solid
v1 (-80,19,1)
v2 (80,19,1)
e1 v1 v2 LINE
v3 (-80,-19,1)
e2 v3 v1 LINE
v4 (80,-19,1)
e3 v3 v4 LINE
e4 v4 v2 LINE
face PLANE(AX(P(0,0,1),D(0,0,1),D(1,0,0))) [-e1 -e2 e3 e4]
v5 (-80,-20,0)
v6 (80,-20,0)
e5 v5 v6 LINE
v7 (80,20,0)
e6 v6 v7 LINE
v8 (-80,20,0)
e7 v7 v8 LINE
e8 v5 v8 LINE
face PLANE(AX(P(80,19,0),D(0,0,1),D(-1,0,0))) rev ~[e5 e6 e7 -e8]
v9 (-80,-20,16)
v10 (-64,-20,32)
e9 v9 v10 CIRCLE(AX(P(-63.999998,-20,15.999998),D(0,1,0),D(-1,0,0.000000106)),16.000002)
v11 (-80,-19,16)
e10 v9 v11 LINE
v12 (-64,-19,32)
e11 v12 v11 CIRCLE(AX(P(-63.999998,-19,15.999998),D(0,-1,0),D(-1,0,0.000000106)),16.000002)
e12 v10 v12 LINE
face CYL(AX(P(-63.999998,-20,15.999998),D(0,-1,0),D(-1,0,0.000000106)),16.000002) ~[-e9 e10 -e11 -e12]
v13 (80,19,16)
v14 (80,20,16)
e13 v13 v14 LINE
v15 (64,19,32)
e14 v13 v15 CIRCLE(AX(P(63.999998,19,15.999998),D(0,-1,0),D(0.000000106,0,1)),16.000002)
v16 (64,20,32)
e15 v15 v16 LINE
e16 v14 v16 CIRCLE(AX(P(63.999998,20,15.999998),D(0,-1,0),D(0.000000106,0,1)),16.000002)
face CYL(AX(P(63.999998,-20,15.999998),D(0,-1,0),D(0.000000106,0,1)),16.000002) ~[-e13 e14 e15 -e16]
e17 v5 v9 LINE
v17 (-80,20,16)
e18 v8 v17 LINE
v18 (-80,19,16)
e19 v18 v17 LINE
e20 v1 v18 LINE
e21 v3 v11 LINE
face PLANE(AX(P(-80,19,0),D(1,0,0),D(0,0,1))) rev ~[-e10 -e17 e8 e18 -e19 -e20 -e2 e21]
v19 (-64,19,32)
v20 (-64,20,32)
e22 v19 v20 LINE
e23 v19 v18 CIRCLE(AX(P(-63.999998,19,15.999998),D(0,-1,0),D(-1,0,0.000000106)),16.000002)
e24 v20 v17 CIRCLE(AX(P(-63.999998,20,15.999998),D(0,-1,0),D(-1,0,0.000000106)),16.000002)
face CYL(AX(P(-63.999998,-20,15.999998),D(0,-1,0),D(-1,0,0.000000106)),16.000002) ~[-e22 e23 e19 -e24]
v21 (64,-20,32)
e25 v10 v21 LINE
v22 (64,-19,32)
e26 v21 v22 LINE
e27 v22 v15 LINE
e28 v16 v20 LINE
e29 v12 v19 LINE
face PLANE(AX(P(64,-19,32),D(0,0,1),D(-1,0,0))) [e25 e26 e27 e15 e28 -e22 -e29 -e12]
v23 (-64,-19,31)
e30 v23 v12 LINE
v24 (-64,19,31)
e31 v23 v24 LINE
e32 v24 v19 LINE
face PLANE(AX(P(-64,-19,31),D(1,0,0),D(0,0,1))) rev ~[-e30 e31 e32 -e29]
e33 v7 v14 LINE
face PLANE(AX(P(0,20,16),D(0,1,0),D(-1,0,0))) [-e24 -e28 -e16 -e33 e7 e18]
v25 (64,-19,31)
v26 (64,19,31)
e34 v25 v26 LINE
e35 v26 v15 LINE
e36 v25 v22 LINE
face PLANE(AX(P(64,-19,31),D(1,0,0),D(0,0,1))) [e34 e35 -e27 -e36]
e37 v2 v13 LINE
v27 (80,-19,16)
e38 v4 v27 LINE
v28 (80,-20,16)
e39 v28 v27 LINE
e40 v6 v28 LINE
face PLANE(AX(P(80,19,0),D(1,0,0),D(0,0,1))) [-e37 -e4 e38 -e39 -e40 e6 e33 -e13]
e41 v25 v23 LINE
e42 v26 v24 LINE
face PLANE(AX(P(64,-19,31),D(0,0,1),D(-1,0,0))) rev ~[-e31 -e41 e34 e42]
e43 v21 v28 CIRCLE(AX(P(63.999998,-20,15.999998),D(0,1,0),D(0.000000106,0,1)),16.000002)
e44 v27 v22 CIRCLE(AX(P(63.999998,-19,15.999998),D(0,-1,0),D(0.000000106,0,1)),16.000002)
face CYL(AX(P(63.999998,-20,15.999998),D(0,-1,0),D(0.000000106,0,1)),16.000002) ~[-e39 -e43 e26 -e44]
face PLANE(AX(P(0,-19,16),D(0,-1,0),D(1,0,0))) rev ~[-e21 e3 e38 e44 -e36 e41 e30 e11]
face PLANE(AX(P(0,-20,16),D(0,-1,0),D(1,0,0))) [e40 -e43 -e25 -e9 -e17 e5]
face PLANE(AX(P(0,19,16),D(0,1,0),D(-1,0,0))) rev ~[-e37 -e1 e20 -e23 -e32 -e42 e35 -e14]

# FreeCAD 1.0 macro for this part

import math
import FreeCAD as App
import Part
import Sketcher


def add_polygon(sketch, points):
    """Adds a closed chain of lines whose ends are joined by coincident constraints."""
    first, n = sketch.GeometryCount, len(points)
    for a, b in zip(points, points[1:] + points[:1]):
        sketch.addGeometry(Part.LineSegment(App.Vector(*a, 0), App.Vector(*b, 0)), False)
    for i in range(n):
        sketch.addConstraint(Sketcher.Constraint("Coincident", first + i, 2, first + (i + 1) % n, 1))

doc = App.newDocument("Part")
body = doc.addObject("PartDesign::Body", "Body")

# Sketch on XY plane
sketch1 = body.newObject("Sketcher::SketchObject", "Sketch")
sketch1.AttachmentSupport = (doc.getObject("XY_Plane"), [""])
sketch1.MapMode = "FlatFace"
add_polygon(sketch1, [(-80, 19), (-80, -19), (80, -19), (80, 19)])  # lines 0-3
sketch1.addConstraint(Sketcher.Constraint("Vertical", 0))
sketch1.addConstraint(Sketcher.Constraint("Horizontal", 1))
sketch1.addConstraint(Sketcher.Constraint("Vertical", 2))
sketch1.addConstraint(Sketcher.Constraint("Horizontal", 3))
sketch1.addConstraint(Sketcher.Constraint("Symmetric", 0, 2, 2, 2, -1, 1))
sketch1.addConstraint(Sketcher.Constraint("DistanceX", 1, 1, 1, 2, 160.0))
sketch1.addConstraint(Sketcher.Constraint("DistanceY", 0, 2, 0, 1, 38.0))
pad1 = body.newObject("PartDesign::Pad", "Pad")
pad1.Profile = sketch1
pad1.Length = 1

# Sketch on XZ plane
sketch2 = body.newObject("Sketcher::SketchObject", "Sketch001")
sketch2.AttachmentSupport = (doc.getObject("XZ_Plane"), [""])
sketch2.MapMode = "FlatFace"
sketch2.AttachmentOffset = App.Placement(App.Vector(0, 0, 19), App.Rotation())
add_polygon(sketch2, [(-80, 32), (-80, 0), (80, 0), (80, 32)])  # lines 0-3
sketch2.addConstraint(Sketcher.Constraint("Vertical", 0))
sketch2.addConstraint(Sketcher.Constraint("Horizontal", 1))
sketch2.addConstraint(Sketcher.Constraint("Vertical", 2))
sketch2.addConstraint(Sketcher.Constraint("Horizontal", 3))
sketch2.addConstraint(Sketcher.Constraint("Symmetric", 0, 2, 1, 2, -1, 1))
sketch2.addConstraint(Sketcher.Constraint("DistanceX", 1, 1, 1, 2, 160.0))
sketch2.addConstraint(Sketcher.Constraint("DistanceY", 0, 2, 0, 1, 32.0))
pad2 = body.newObject("PartDesign::Pad", "Pad001")
pad2.Profile = sketch2
pad2.Length = 1

# Sketch on XZ plane
sketch3 = body.newObject("Sketcher::SketchObject", "Sketch002")
sketch3.AttachmentSupport = (doc.getObject("XZ_Plane"), [""])
sketch3.MapMode = "FlatFace"
sketch3.AttachmentOffset = App.Placement(App.Vector(0, 0, -19), App.Rotation())
add_polygon(sketch3, [(80, 32), (80, 0), (-80, 0), (-80, 32)])  # lines 0-3
sketch3.addConstraint(Sketcher.Constraint("Vertical", 0))
sketch3.addConstraint(Sketcher.Constraint("Horizontal", 1))
sketch3.addConstraint(Sketcher.Constraint("Vertical", 2))
sketch3.addConstraint(Sketcher.Constraint("Horizontal", 3))
sketch3.addConstraint(Sketcher.Constraint("Symmetric", 0, 2, 1, 2, -1, 1))
sketch3.addConstraint(Sketcher.Constraint("DistanceX", 1, 2, 1, 1, 160.0))
sketch3.addConstraint(Sketcher.Constraint("DistanceY", 0, 2, 0, 1, 32.0))
pad3 = body.newObject("PartDesign::Pad", "Pad002")
pad3.Profile = sketch3
pad3.Length = 1
pad3.Reversed = True

# Sketch on XZ plane
sketch4 = body.newObject("Sketcher::SketchObject", "Sketch003")
sketch4.AttachmentSupport = (doc.getObject("XZ_Plane"), [""])
sketch4.MapMode = "FlatFace"
sketch4.AttachmentOffset = App.Placement(App.Vector(0, 0, 20), App.Rotation())
sketch4.addGeometry(Part.ArcOfCircle(Part.Circle(App.Vector(-63.999998, 15.999998, 0), App.Vector(0, 0, 1), 16.000002), math.radians(90.000006), math.radians(179.999994)), False)
sketch4.addGeometry(Part.LineSegment(App.Vector(-64, 32, 0), App.Vector(-80, 32, 0)), False)
sketch4.addGeometry(Part.LineSegment(App.Vector(-80, 32, 0), App.Vector(-80, 16, 0)), False)
sketch4.addConstraint(Sketcher.Constraint("Tangent", 0, 1, 1, 1))
sketch4.addConstraint(Sketcher.Constraint("Coincident", 1, 2, 2, 1))
sketch4.addConstraint(Sketcher.Constraint("Tangent", 2, 2, 0, 2))
sketch4.addConstraint(Sketcher.Constraint("Horizontal", 1))
sketch4.addConstraint(Sketcher.Constraint("Vertical", 2))
sketch4.addConstraint(Sketcher.Constraint("Radius", 0, 16.000002))
sketch4.addConstraint(Sketcher.Constraint("DistanceX", 0, 3, -1, 1, 63.999998))
sketch4.addConstraint(Sketcher.Constraint("DistanceY", -1, 1, 0, 3, 15.999998))
pocket1 = body.newObject("PartDesign::Pocket", "Pocket")
pocket1.Profile = sketch4
pocket1.Type = "ThroughAll"

# Sketch on XZ plane
sketch5 = body.newObject("Sketcher::SketchObject", "Sketch004")
sketch5.AttachmentSupport = (doc.getObject("XZ_Plane"), [""])
sketch5.MapMode = "FlatFace"
sketch5.AttachmentOffset = App.Placement(App.Vector(0, 0, 20), App.Rotation())
sketch5.addGeometry(Part.LineSegment(App.Vector(80, 32, 0), App.Vector(64, 32, 0)), False)
sketch5.addGeometry(Part.ArcOfCircle(Part.Circle(App.Vector(63.999998, 15.999998, 0), App.Vector(0, 0, 1), 16.000002), math.radians(0.000006), math.radians(89.999994)), False)
sketch5.addGeometry(Part.LineSegment(App.Vector(80, 16, 0), App.Vector(80, 32, 0)), False)
sketch5.addConstraint(Sketcher.Constraint("Tangent", 0, 2, 1, 2))
sketch5.addConstraint(Sketcher.Constraint("Tangent", 1, 1, 2, 1))
sketch5.addConstraint(Sketcher.Constraint("Coincident", 2, 2, 0, 1))
sketch5.addConstraint(Sketcher.Constraint("Horizontal", 0))
sketch5.addConstraint(Sketcher.Constraint("Vertical", 2))
sketch5.addConstraint(Sketcher.Constraint("Radius", 1, 16.000002))
sketch5.addConstraint(Sketcher.Constraint("DistanceX", -1, 1, 1, 3, 63.999998))
sketch5.addConstraint(Sketcher.Constraint("DistanceY", -1, 1, 1, 3, 15.999998))
pocket2 = body.newObject("PartDesign::Pocket", "Pocket001")
pocket2.Profile = sketch5
pocket2.Type = "ThroughAll"

# Sketch on XZ plane
sketch6 = body.newObject("Sketcher::SketchObject", "Sketch005")
sketch6.AttachmentSupport = (doc.getObject("XZ_Plane"), [""])
sketch6.MapMode = "FlatFace"
sketch6.AttachmentOffset = App.Placement(App.Vector(0, 0, 19), App.Rotation())
add_polygon(sketch6, [(64, 32), (64, 31), (-64, 31), (-64, 32)])  # lines 0-3
sketch6.addConstraint(Sketcher.Constraint("Vertical", 0))
sketch6.addConstraint(Sketcher.Constraint("Horizontal", 1))
sketch6.addConstraint(Sketcher.Constraint("Vertical", 2))
sketch6.addConstraint(Sketcher.Constraint("Horizontal", 3))
sketch6.addConstraint(Sketcher.Constraint("DistanceX", 1, 2, 1, 1, 128.0))
sketch6.addConstraint(Sketcher.Constraint("DistanceY", 0, 2, 0, 1, 1.0))
sketch6.addConstraint(Sketcher.Constraint("DistanceX", -1, 1, 0, 2, 64.0))
sketch6.addConstraint(Sketcher.Constraint("DistanceY", -1, 1, 0, 2, 31.0))
pad4 = body.newObject("PartDesign::Pad", "Pad003")
pad4.Profile = sketch6
pad4.Length = 38
pad4.Reversed = True

doc.recompute()
